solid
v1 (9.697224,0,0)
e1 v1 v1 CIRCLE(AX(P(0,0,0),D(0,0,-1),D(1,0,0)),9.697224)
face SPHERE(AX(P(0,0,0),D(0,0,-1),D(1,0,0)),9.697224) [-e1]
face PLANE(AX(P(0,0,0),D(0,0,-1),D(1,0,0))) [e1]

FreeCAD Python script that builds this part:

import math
import FreeCAD as App
import Part
import Sketcher
from FreeCAD import Vector

doc = App.newDocument("Part")
body = doc.addObject("PartDesign::Body", "Body")

sketch1 = body.newObject("Sketcher::SketchObject", "Sketch")
sketch1.AttachmentSupport = (doc.getObject("XY_Plane"), [""])
sketch1.MapMode = "FlatFace"
sketch1.addGeometry([
    Part.LineSegment(Vector(-10, 0, 0), Vector(10, 0, 0)),
    Part.ArcOfCircle(Part.Circle(Vector(0, 0, 0), Vector(0, 0, 1), 10), math.radians(0), math.radians(180)),
], False)
sketch1.addConstraint([
    Sketcher.Constraint("Coincident", 0, 1, 1, 2),
    Sketcher.Constraint("Coincident", 1, 1, 0, 2),
    Sketcher.Constraint("Horizontal", 0),
    Sketcher.Constraint("Coincident", 1, 3, -1, 1),
    Sketcher.Constraint("PointOnObject", 0, 1, -1),
    Sketcher.Constraint("Radius", 1, 9.697224),
])
revolution = body.newObject("PartDesign::Revolution", "Revolution")
revolution.Profile = sketch1
revolution.ReferenceAxis = (sketch1, ["H_Axis"])
revolution.Angle = 180

doc.recompute()
